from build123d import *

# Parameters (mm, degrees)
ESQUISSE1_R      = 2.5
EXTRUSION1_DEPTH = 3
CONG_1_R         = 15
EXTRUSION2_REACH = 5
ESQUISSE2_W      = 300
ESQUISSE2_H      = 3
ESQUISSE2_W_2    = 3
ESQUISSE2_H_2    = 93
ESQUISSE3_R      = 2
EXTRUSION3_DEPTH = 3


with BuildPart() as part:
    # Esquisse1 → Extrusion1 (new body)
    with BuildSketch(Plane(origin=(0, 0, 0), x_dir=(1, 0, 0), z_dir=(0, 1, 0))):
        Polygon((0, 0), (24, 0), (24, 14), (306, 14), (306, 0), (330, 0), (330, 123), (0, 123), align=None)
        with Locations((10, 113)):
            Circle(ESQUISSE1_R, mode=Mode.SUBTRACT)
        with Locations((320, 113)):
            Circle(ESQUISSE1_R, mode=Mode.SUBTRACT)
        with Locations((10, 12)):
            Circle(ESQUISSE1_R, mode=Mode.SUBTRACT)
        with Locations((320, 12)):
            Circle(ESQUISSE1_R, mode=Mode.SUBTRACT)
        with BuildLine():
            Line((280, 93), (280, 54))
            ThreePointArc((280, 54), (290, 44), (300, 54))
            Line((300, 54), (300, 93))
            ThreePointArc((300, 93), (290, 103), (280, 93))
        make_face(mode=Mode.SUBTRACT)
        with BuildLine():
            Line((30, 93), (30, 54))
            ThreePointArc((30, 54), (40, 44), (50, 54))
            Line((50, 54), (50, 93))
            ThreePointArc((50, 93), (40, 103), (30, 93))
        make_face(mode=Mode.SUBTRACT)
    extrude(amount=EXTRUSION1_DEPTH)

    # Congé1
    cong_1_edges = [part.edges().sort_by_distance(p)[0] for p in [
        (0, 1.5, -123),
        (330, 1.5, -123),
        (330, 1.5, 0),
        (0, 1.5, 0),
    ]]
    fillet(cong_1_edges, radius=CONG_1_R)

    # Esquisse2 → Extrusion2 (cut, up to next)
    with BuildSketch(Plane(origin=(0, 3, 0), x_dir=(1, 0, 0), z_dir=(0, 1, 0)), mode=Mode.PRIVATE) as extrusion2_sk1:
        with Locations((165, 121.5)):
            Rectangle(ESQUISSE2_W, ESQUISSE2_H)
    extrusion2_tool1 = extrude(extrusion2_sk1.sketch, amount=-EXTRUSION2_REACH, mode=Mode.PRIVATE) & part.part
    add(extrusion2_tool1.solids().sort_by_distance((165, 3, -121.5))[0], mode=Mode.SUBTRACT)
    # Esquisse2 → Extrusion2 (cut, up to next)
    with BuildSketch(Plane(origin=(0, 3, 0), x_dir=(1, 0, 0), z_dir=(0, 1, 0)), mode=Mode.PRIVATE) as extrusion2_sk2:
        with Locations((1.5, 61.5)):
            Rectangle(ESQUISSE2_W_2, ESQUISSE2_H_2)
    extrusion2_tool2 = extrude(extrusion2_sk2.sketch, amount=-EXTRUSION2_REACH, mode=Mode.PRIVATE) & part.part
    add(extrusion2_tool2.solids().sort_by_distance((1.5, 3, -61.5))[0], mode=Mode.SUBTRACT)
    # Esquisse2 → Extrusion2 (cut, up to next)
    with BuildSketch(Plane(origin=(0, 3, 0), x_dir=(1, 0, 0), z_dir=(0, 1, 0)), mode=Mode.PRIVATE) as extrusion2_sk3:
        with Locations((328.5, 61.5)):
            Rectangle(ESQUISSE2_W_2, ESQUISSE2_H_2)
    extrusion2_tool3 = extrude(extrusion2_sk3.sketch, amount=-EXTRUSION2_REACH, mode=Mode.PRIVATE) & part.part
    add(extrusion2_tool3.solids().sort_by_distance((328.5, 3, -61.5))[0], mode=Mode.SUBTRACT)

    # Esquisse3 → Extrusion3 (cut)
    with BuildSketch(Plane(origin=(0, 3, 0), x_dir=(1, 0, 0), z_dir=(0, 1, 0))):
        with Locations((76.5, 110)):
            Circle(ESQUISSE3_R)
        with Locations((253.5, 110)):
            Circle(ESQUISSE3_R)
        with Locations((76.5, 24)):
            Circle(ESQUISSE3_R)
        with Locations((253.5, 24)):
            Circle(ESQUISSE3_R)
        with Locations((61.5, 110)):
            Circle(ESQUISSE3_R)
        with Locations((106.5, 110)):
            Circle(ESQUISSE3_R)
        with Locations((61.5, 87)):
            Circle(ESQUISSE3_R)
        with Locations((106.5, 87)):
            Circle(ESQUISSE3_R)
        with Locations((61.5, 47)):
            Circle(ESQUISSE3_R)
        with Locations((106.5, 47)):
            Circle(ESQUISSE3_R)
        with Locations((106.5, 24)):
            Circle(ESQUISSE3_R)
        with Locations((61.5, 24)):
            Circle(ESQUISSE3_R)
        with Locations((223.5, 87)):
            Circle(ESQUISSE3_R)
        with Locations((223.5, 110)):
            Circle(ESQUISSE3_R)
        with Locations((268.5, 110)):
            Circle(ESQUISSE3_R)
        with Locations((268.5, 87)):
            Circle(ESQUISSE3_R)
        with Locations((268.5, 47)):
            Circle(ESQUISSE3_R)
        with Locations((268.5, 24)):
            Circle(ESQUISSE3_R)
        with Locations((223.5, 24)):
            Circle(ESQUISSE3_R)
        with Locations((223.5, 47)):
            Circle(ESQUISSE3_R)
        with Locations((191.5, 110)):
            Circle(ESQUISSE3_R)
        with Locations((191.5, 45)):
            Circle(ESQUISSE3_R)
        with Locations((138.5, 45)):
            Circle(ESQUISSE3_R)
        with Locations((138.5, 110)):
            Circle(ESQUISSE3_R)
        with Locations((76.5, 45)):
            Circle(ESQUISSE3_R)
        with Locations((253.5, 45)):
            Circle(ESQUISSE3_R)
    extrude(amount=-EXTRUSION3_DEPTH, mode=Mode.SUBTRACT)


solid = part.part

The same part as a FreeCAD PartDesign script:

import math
import FreeCAD as App
import Part
import Sketcher
from FreeCAD import Vector
Q = App.Units.Quantity


def edges_at(feature, points):
    """Names of the edges that pass closest to the given points."""
    edges = feature.Shape.Edges
    near = lambda p: min(range(len(edges)), key=lambda i: edges[i].distToShape(Part.Vertex(*p))[0])
    return sorted({f"Edge{near(p) + 1}" for p in points})


def add_polygon(sketch, points):
    """Adds a closed chain of lines whose ends are joined by coincident constraints."""
    first, n = sketch.GeometryCount, len(points)
    for a, b in zip(points, points[1:] + points[:1]):
        sketch.addGeometry(Part.LineSegment(App.Vector(*a, 0), App.Vector(*b, 0)), False)
    for i in range(n):
        sketch.addConstraint(Sketcher.Constraint("Coincident", first + i, 2, first + (i + 1) % n, 1))

doc = App.newDocument("Part")
body = doc.addObject("PartDesign::Body", "Body")

# Sketch on XZ plane
sketch1 = body.newObject("Sketcher::SketchObject", "Sketch")
sketch1.AttachmentSupport = (doc.getObject("XZ_Plane"), [""])
sketch1.MapMode = "FlatFace"
add_polygon(sketch1, [(0, 0), (24, 0), (24, -14), (306, -14), (306, 0), (330, 0), (330, -123), (0, -123)])  # lines 0-7
sketch1.addGeometry(Part.Circle(Vector(10, -12, 0), Vector(0, 0, 1), 2.5), False)  # 8
sketch1.addGeometry(Part.Circle(Vector(320, -12, 0), Vector(0, 0, 1), 2.5), False)  # 9
sketch1.addGeometry(Part.LineSegment(Vector(30, -54, 0), Vector(30, -93, 0)), False)  # 10
sketch1.addGeometry(Part.ArcOfCircle(Part.Circle(Vector(40, -93, 0), Vector(0, 0, 1), 10), math.radians(180), math.radians(360)), False)  # 11
sketch1.addGeometry(Part.LineSegment(Vector(50, -93, 0), Vector(50, -54, 0)), False)  # 12
sketch1.addGeometry(Part.ArcOfCircle(Part.Circle(Vector(40, -54, 0), Vector(0, 0, 1), 10), math.radians(0), math.radians(180)), False)  # 13
sketch1.addGeometry(Part.Circle(Vector(10, -113, 0), Vector(0, 0, 1), 2.5), False)  # 14
sketch1.addGeometry(Part.LineSegment(Vector(280, -54, 0), Vector(280, -93, 0)), False)  # 15
sketch1.addGeometry(Part.ArcOfCircle(Part.Circle(Vector(290, -93, 0), Vector(0, 0, 1), 10), math.radians(180), math.radians(360)), False)  # 16
sketch1.addGeometry(Part.LineSegment(Vector(300, -93, 0), Vector(300, -54, 0)), False)  # 17
sketch1.addGeometry(Part.ArcOfCircle(Part.Circle(Vector(290, -54, 0), Vector(0, 0, 1), 10), math.radians(0), math.radians(180)), False)  # 18
sketch1.addGeometry(Part.Circle(Vector(320, -113, 0), Vector(0, 0, 1), 2.5), False)  # 19
sketch1.addConstraint([
    Sketcher.Constraint("Tangent", 10, 2, 11, 1),
    Sketcher.Constraint("Tangent", 11, 2, 12, 1),
    Sketcher.Constraint("Tangent", 12, 2, 13, 1),
    Sketcher.Constraint("Tangent", 13, 2, 10, 1),
    Sketcher.Constraint("Tangent", 15, 2, 16, 1),
    Sketcher.Constraint("Tangent", 16, 2, 17, 1),
    Sketcher.Constraint("Tangent", 17, 2, 18, 1),
    Sketcher.Constraint("Tangent", 18, 2, 15, 1),
    Sketcher.Constraint("Horizontal", 0),
    Sketcher.Constraint("Vertical", 1),
    Sketcher.Constraint("Horizontal", 2),
    Sketcher.Constraint("Vertical", 3),
    Sketcher.Constraint("Horizontal", 4),
    Sketcher.Constraint("Vertical", 5),
    Sketcher.Constraint("Horizontal", 6),
    Sketcher.Constraint("Vertical", 7),
    Sketcher.Constraint("Vertical", 10),
    Sketcher.Constraint("Vertical", 12),
    Sketcher.Constraint("Vertical", 15),
    Sketcher.Constraint("Vertical", 17),
    Sketcher.Constraint("Coincident", 7, 2, -1, 1),
    Sketcher.Constraint("Equal", 8, 9),
    Sketcher.Constraint("Equal", 9, 14),
    Sketcher.Constraint("Equal", 13, 16),
    Sketcher.Constraint("Equal", 14, 19),
    Sketcher.Constraint("PointOnObject", 3, 2, -1),
    Sketcher.Constraint("Horizontal", 8, 3, 9, 3),
    Sketcher.Constraint("Horizontal", 11, 3, 16, 3),
    Sketcher.Constraint("Horizontal", 13, 3, 18, 3),
    Sketcher.Constraint("Horizontal", 14, 3, 19, 3),
    Sketcher.Constraint("Vertical", 8, 3, 14, 3),
    Sketcher.Constraint("Vertical", 9, 3, 19, 3),
    Sketcher.Constraint("Equal", 0, 4),
    Sketcher.Constraint("Diameter", 8, Q("5 mm")),
    Sketcher.Constraint("Radius", 11, Q("10 mm")),
    Sketcher.Constraint("DistanceX", 0, 1, 0, 2, Q("24 mm")),
    Sketcher.Constraint("DistanceX", 2, 1, 2, 2, Q("282 mm")),
    Sketcher.Constraint("DistanceY", 1, 2, 1, 1, Q("14 mm")),
    Sketcher.Constraint("DistanceY", 5, 2, 5, 1, Q("123 mm")),
    Sketcher.Constraint("DistanceY", 10, 2, 10, 1, Q("39 mm")),
    Sketcher.Constraint("DistanceX", -1, 1, 8, 3, Q("10 mm")),
    Sketcher.Constraint("DistanceY", 8, 3, -1, 1, Q("12 mm")),
    Sketcher.Constraint("DistanceX", -1, 1, 9, 3, Q("320 mm")),
    Sketcher.Constraint("DistanceX", -1, 1, 11, 3, Q("40 mm")),
    Sketcher.Constraint("DistanceY", 11, 3, -1, 1, Q("93 mm")),
    Sketcher.Constraint("DistanceY", 14, 3, -1, 1, Q("113 mm")),
    Sketcher.Constraint("DistanceX", -1, 1, 16, 3, Q("290 mm")),
])
pad1 = body.newObject("PartDesign::Pad", "Pad")
pad1.Profile = sketch1
pad1.Length = 3
pad1.Reversed = True
doc.recompute()

fillet = body.newObject("PartDesign::Fillet", "Fillet")
fillet.Base = (pad1, edges_at(pad1, [
    (0, 1.5, -123),
    (330, 1.5, -123),
    (330, 1.5, 0),
    (0, 1.5, 0),
]))
fillet.Radius = 15

# Sketch on XZ plane
sketch2 = body.newObject("Sketcher::SketchObject", "Sketch001")
sketch2.AttachmentSupport = (doc.getObject("XZ_Plane"), [""])
sketch2.MapMode = "FlatFace"
sketch2.AttachmentOffset = App.Placement(Vector(0, 0, -3), App.Rotation())
add_polygon(sketch2, [(15, -123), (15, -120), (315, -120), (315, -123)])  # lines 0-3
sketch2.addConstraint([
    Sketcher.Constraint("Vertical", 0),
    Sketcher.Constraint("Horizontal", 1),
    Sketcher.Constraint("Vertical", 2),
    Sketcher.Constraint("Horizontal", 3),
    Sketcher.Constraint("DistanceX", 1, 1, 1, 2, Q("300 mm")),
    Sketcher.Constraint("DistanceY", 0, 1, 0, 2, Q("3 mm")),
    Sketcher.Constraint("DistanceX", -1, 1, 0, 2, Q("15 mm")),
    Sketcher.Constraint("DistanceY", 0, 2, -1, 1, Q("120 mm")),
])
pocket1 = body.newObject("PartDesign::Pocket", "Pocket")
pocket1.Profile = sketch2
pocket1.Type = "UpToFirst"
pocket1.Reversed = True

# Sketch on XZ plane
sketch3 = body.newObject("Sketcher::SketchObject", "Sketch002")
sketch3.AttachmentSupport = (doc.getObject("XZ_Plane"), [""])
sketch3.MapMode = "FlatFace"
sketch3.AttachmentOffset = App.Placement(Vector(0, 0, -3), App.Rotation())
add_polygon(sketch3, [(0, -108), (0, -15), (3, -15), (3, -108)])  # lines 0-3
sketch3.addConstraint([
    Sketcher.Constraint("Vertical", 0),
    Sketcher.Constraint("Horizontal", 1),
    Sketcher.Constraint("Vertical", 2),
    Sketcher.Constraint("Horizontal", 3),
    Sketcher.Constraint("PointOnObject", 0, 2, -2),
    Sketcher.Constraint("DistanceX", 1, 1, 1, 2, Q("3 mm")),
    Sketcher.Constraint("DistanceY", 0, 1, 0, 2, Q("93 mm")),
    Sketcher.Constraint("DistanceY", 0, 2, -1, 1, Q("15 mm")),
])
pocket2 = body.newObject("PartDesign::Pocket", "Pocket001")
pocket2.Profile = sketch3
pocket2.Type = "UpToFirst"
pocket2.Reversed = True

# Sketch on XZ plane
sketch4 = body.newObject("Sketcher::SketchObject", "Sketch003")
sketch4.AttachmentSupport = (doc.getObject("XZ_Plane"), [""])
sketch4.MapMode = "FlatFace"
sketch4.AttachmentOffset = App.Placement(Vector(0, 0, -3), App.Rotation())
add_polygon(sketch4, [(327, -108), (327, -15), (330, -15), (330, -108)])  # lines 0-3
sketch4.addConstraint([
    Sketcher.Constraint("Vertical", 0),
    Sketcher.Constraint("Horizontal", 1),
    Sketcher.Constraint("Vertical", 2),
    Sketcher.Constraint("Horizontal", 3),
    Sketcher.Constraint("DistanceX", 1, 1, 1, 2, Q("3 mm")),
    Sketcher.Constraint("DistanceY", 0, 1, 0, 2, Q("93 mm")),
    Sketcher.Constraint("DistanceX", -1, 1, 0, 2, Q("327 mm")),
    Sketcher.Constraint("DistanceY", 0, 2, -1, 1, Q("15 mm")),
])
pocket3 = body.newObject("PartDesign::Pocket", "Pocket002")
pocket3.Profile = sketch4
pocket3.Type = "UpToFirst"
pocket3.Reversed = True

# Sketch on XZ plane
sketch5 = body.newObject("Sketcher::SketchObject", "Sketch004")
sketch5.AttachmentSupport = (doc.getObject("XZ_Plane"), [""])
sketch5.MapMode = "FlatFace"
sketch5.AttachmentOffset = App.Placement(Vector(0, 0, -3), App.Rotation())
sketch5.addGeometry([
    Part.Circle(Vector(76.5, -110, 0), Vector(0, 0, 1), 2),  # 0
    Part.Circle(Vector(253.5, -110, 0), Vector(0, 0, 1), 2),  # 1
    Part.Circle(Vector(76.5, -24, 0), Vector(0, 0, 1), 2),  # 2
    Part.Circle(Vector(253.5, -24, 0), Vector(0, 0, 1), 2),  # 3
    Part.Circle(Vector(61.5, -110, 0), Vector(0, 0, 1), 2),  # 4
    Part.Circle(Vector(106.5, -110, 0), Vector(0, 0, 1), 2),  # 5
    Part.Circle(Vector(61.5, -87, 0), Vector(0, 0, 1), 2),  # 6
    Part.Circle(Vector(106.5, -87, 0), Vector(0, 0, 1), 2),  # 7
    Part.Circle(Vector(61.5, -47, 0), Vector(0, 0, 1), 2),  # 8
    Part.Circle(Vector(106.5, -47, 0), Vector(0, 0, 1), 2),  # 9
    Part.Circle(Vector(106.5, -24, 0), Vector(0, 0, 1), 2),  # 10
    Part.Circle(Vector(61.5, -24, 0), Vector(0, 0, 1), 2),  # 11
    Part.Circle(Vector(223.5, -87, 0), Vector(0, 0, 1), 2),  # 12
    Part.Circle(Vector(223.5, -110, 0), Vector(0, 0, 1), 2),  # 13
    Part.Circle(Vector(268.5, -110, 0), Vector(0, 0, 1), 2),  # 14
    Part.Circle(Vector(268.5, -87, 0), Vector(0, 0, 1), 2),  # 15
    Part.Circle(Vector(268.5, -47, 0), Vector(0, 0, 1), 2),  # 16
    Part.Circle(Vector(268.5, -24, 0), Vector(0, 0, 1), 2),  # 17
    Part.Circle(Vector(223.5, -24, 0), Vector(0, 0, 1), 2),  # 18
    Part.Circle(Vector(223.5, -47, 0), Vector(0, 0, 1), 2),  # 19
    Part.Circle(Vector(191.5, -110, 0), Vector(0, 0, 1), 2),  # 20
    Part.Circle(Vector(191.5, -45, 0), Vector(0, 0, 1), 2),  # 21
    Part.Circle(Vector(138.5, -45, 0), Vector(0, 0, 1), 2),  # 22
    Part.Circle(Vector(138.5, -110, 0), Vector(0, 0, 1), 2),  # 23
    Part.Circle(Vector(76.5, -45, 0), Vector(0, 0, 1), 2),  # 24
    Part.Circle(Vector(253.5, -45, 0), Vector(0, 0, 1), 2),  # 25
], False)
sketch5.addConstraint([
    Sketcher.Constraint("Equal", 0, 1),
    Sketcher.Constraint("Equal", 1, 2),
    Sketcher.Constraint("Equal", 2, 3),
    Sketcher.Constraint("Equal", 3, 4),
    Sketcher.Constraint("Equal", 4, 5),
    Sketcher.Constraint("Equal", 5, 6),
    Sketcher.Constraint("Equal", 6, 7),
    Sketcher.Constraint("Equal", 7, 8),
    Sketcher.Constraint("Equal", 8, 9),
    Sketcher.Constraint("Equal", 9, 10),
    Sketcher.Constraint("Equal", 10, 11),
    Sketcher.Constraint("Equal", 11, 12),
    Sketcher.Constraint("Equal", 12, 13),
    Sketcher.Constraint("Equal", 13, 14),
    Sketcher.Constraint("Equal", 14, 15),
    Sketcher.Constraint("Equal", 15, 16),
    Sketcher.Constraint("Equal", 16, 17),
    Sketcher.Constraint("Equal", 17, 18),
    Sketcher.Constraint("Equal", 18, 19),
    Sketcher.Constraint("Equal", 19, 20),
    Sketcher.Constraint("Equal", 20, 21),
    Sketcher.Constraint("Equal", 21, 22),
    Sketcher.Constraint("Equal", 22, 23),
    Sketcher.Constraint("Equal", 23, 24),
    Sketcher.Constraint("Equal", 24, 25),
    Sketcher.Constraint("Horizontal", 0, 3, 1, 3),
    Sketcher.Constraint("Horizontal", 2, 3, 3, 3),
    Sketcher.Constraint("Horizontal", 1, 3, 4, 3),
    Sketcher.Constraint("Horizontal", 4, 3, 5, 3),
    Sketcher.Constraint("Horizontal", 6, 3, 7, 3),
    Sketcher.Constraint("Horizontal", 8, 3, 9, 3),
    Sketcher.Constraint("Horizontal", 3, 3, 10, 3),
    Sketcher.Constraint("Horizontal", 10, 3, 11, 3),
    Sketcher.Constraint("Horizontal", 7, 3, 12, 3),
    Sketcher.Constraint("Horizontal", 5, 3, 13, 3),
    Sketcher.Constraint("Horizontal", 13, 3, 14, 3),
    Sketcher.Constraint("Horizontal", 12, 3, 15, 3),
    Sketcher.Constraint("Horizontal", 9, 3, 16, 3),
    Sketcher.Constraint("Horizontal", 11, 3, 17, 3),
    Sketcher.Constraint("Horizontal", 17, 3, 18, 3),
    Sketcher.Constraint("Horizontal", 16, 3, 19, 3),
    Sketcher.Constraint("Horizontal", 14, 3, 20, 3),
    Sketcher.Constraint("Horizontal", 21, 3, 22, 3),
    Sketcher.Constraint("Horizontal", 20, 3, 23, 3),
    Sketcher.Constraint("Horizontal", 22, 3, 24, 3),
    Sketcher.Constraint("Horizontal", 24, 3, 25, 3),
    Sketcher.Constraint("Vertical", 0, 3, 2, 3),
    Sketcher.Constraint("Vertical", 1, 3, 3, 3),
    Sketcher.Constraint("Vertical", 4, 3, 6, 3),
    Sketcher.Constraint("Vertical", 5, 3, 7, 3),
    Sketcher.Constraint("Vertical", 6, 3, 8, 3),
    Sketcher.Constraint("Vertical", 7, 3, 9, 3),
    Sketcher.Constraint("Vertical", 9, 3, 10, 3),
    Sketcher.Constraint("Vertical", 8, 3, 11, 3),
    Sketcher.Constraint("Vertical", 12, 3, 13, 3),
    Sketcher.Constraint("Vertical", 14, 3, 15, 3),
    Sketcher.Constraint("Vertical", 15, 3, 16, 3),
    Sketcher.Constraint("Vertical", 16, 3, 17, 3),
    Sketcher.Constraint("Vertical", 13, 3, 18, 3),
    Sketcher.Constraint("Vertical", 18, 3, 19, 3),
    Sketcher.Constraint("Vertical", 20, 3, 21, 3),
    Sketcher.Constraint("Vertical", 22, 3, 23, 3),
    Sketcher.Constraint("Vertical", 2, 3, 24, 3),
    Sketcher.Constraint("Vertical", 3, 3, 25, 3),
    Sketcher.Constraint("Diameter", 0, Q("4 mm")),
    Sketcher.Constraint("DistanceY", 0, 3, -1, 1, Q("110 mm")),
    Sketcher.Constraint("DistanceY", 2, 3, -1, 1, Q("24 mm")),
    Sketcher.Constraint("DistanceY", 6, 3, -1, 1, Q("87 mm")),
    Sketcher.Constraint("DistanceY", 8, 3, -1, 1, Q("47 mm")),
    Sketcher.Constraint("DistanceY", 21, 3, -1, 1, Q("45 mm")),
    Sketcher.Constraint("DistanceX", 0, 3, 1, 3, Q("177 mm")),
    Sketcher.Constraint("DistanceX", 4, 3, 0, 3, Q("15 mm")),
    Sketcher.Constraint("DistanceX", 0, 3, 5, 3, Q("30 mm")),
    Sketcher.Constraint("DistanceX", 12, 3, 1, 3, Q("30 mm")),
    Sketcher.Constraint("DistanceX", 1, 3, 14, 3, Q("15 mm")),
    Sketcher.Constraint("DistanceX", 20, 3, 13, 3, Q("32 mm")),
    Sketcher.Constraint("DistanceX", 9, 3, 22, 3, Q("32 mm")),
    Sketcher.Constraint("DistanceX", -1, 1, 0, 3, Q("76.5 mm")),
])
pocket4 = body.newObject("PartDesign::Pocket", "Pocket003")
pocket4.Profile = sketch5
pocket4.Length = 3
pocket4.Reversed = True

doc.recompute()
